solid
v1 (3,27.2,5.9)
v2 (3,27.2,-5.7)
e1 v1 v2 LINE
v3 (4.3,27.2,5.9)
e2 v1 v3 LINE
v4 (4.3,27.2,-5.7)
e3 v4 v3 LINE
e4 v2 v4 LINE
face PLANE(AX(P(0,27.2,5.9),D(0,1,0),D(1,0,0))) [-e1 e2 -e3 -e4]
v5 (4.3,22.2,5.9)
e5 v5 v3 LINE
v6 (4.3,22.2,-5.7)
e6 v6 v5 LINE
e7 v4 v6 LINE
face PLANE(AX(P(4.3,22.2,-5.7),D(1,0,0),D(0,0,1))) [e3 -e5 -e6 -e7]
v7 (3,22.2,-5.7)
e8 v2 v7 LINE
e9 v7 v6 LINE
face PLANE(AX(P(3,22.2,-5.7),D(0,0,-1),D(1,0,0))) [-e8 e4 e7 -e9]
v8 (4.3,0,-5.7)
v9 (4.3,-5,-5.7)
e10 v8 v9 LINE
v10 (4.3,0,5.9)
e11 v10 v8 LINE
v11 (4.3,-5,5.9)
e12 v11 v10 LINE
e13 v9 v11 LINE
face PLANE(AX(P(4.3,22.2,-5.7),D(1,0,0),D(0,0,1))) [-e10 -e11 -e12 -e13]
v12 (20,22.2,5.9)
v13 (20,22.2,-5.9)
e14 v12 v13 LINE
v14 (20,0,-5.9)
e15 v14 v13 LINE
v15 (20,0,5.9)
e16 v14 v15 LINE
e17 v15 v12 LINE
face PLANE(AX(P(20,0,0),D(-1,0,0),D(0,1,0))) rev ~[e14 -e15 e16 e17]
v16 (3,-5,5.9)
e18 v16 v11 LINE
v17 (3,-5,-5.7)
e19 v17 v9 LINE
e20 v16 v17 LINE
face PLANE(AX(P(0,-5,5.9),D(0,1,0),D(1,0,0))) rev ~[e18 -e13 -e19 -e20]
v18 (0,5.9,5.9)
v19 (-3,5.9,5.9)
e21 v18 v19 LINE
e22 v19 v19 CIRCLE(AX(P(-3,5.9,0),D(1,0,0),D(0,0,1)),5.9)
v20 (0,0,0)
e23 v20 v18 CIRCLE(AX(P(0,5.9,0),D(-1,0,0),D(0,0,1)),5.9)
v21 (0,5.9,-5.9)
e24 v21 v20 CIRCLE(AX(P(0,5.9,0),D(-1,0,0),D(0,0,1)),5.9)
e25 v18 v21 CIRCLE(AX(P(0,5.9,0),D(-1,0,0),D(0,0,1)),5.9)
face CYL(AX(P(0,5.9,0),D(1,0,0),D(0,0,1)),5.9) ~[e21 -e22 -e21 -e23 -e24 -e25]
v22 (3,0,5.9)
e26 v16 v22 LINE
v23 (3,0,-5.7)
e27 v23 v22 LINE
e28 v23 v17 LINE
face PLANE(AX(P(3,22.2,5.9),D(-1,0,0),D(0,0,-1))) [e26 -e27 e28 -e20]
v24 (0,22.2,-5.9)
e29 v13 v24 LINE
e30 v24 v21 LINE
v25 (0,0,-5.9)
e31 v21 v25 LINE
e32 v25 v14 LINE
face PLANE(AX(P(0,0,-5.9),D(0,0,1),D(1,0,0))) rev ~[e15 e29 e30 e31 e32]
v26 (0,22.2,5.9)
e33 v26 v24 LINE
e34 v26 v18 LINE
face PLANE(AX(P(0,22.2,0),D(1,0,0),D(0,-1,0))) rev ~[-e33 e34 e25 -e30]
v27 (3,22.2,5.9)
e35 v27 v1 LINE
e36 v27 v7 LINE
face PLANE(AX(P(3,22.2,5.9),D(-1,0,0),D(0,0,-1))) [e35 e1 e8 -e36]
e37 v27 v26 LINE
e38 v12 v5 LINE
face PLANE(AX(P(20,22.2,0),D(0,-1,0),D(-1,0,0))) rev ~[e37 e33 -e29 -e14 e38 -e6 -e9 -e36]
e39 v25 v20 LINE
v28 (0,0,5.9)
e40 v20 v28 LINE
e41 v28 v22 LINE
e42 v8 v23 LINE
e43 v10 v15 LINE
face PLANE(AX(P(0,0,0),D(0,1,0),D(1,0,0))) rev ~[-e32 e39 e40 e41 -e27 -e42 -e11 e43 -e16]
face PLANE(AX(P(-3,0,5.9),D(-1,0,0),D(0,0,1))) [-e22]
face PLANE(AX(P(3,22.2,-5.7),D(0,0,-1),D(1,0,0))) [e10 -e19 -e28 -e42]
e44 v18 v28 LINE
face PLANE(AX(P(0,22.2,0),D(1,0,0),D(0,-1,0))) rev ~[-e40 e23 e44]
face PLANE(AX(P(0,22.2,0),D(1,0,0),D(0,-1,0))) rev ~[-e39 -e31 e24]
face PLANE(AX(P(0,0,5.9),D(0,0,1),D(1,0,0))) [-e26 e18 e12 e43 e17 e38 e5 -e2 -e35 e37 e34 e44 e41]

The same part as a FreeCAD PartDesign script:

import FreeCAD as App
import Part
import Sketcher

V = App.Vector
Q = App.Units.Quantity


def add_polygon(sketch, points):
    """Adds a closed chain of lines whose ends are joined by coincident constraints."""
    first, n = sketch.GeometryCount, len(points)
    for a, b in zip(points, points[1:] + points[:1]):
        sketch.addGeometry(Part.LineSegment(App.Vector(*a, 0), App.Vector(*b, 0)), False)
    for i in range(n):
        sketch.addConstraint(Sketcher.Constraint("Coincident", first + i, 2, first + (i + 1) % n, 1))

doc = App.newDocument("Part")
body = doc.addObject("PartDesign::Body", "Body")

# Sketch on XY plane
sketch1 = doc.addObject("Sketcher::SketchObject", "Sketch")
body.addObject(sketch1)
sketch1.AttachmentSupport = (doc.XY_Plane, [""])
sketch1.MapMode = "FlatFace"
add_polygon(sketch1, [(0, 22.2), (0, 0), (20, 0), (20, 22.2)])  # lines 0-3
sketch1.addConstraint(Sketcher.Constraint("Vertical", 0))
sketch1.addConstraint(Sketcher.Constraint("Horizontal", 1))
sketch1.addConstraint(Sketcher.Constraint("Vertical", 2))
sketch1.addConstraint(Sketcher.Constraint("Horizontal", 3))
sketch1.addConstraint(Sketcher.Constraint("Coincident", 0, 2, -1, 1))
sketch1.addConstraint(Sketcher.Constraint("DistanceX", 1, 1, 1, 2, Q("20 mm")))
sketch1.addConstraint(Sketcher.Constraint("DistanceY", 0, 2, 0, 1, Q("22.2 mm")))
pad1 = doc.addObject("PartDesign::Pad", "Pad")
body.addObject(pad1)
pad1.Profile = sketch1
pad1.Length = 11.8
pad1.Midplane = True

# Sketch on YZ plane
sketch2 = doc.addObject("Sketcher::SketchObject", "Sketch001")
body.addObject(sketch2)
sketch2.AttachmentSupport = (doc.YZ_Plane, [""])
sketch2.MapMode = "FlatFace"
sketch2.addGeometry(Part.Circle(V(5.9, 0, 0), V(0, 0, 1), 5.9), False)
sketch2.addConstraint(Sketcher.Constraint("PointOnObject", 0, 3, -1))
sketch2.addConstraint(Sketcher.Constraint("Diameter", 0, Q("11.8 mm")))
sketch2.addConstraint(Sketcher.Constraint("DistanceX", -1, 1, 0, 3, Q("5.9 mm")))
pad2 = doc.addObject("PartDesign::Pad", "Pad001")
body.addObject(pad2)
pad2.Profile = sketch2
pad2.Length = 3
pad2.Reversed = True

# Sketch on XZ plane
sketch3 = doc.addObject("Sketcher::SketchObject", "Sketch002")
body.addObject(sketch3)
sketch3.AttachmentSupport = (doc.XZ_Plane, [""])
sketch3.MapMode = "FlatFace"
sketch3.AttachmentOffset = App.Placement(V(0, 0, -22.2), App.Rotation())
add_polygon(sketch3, [(3, -5.7), (3, 5.9), (4.3, 5.9), (4.3, -5.7)])  # lines 0-3
sketch3.addConstraint(Sketcher.Constraint("Vertical", 0))
sketch3.addConstraint(Sketcher.Constraint("Horizontal", 1))
sketch3.addConstraint(Sketcher.Constraint("Vertical", 2))
sketch3.addConstraint(Sketcher.Constraint("Horizontal", 3))
sketch3.addConstraint(Sketcher.Constraint("DistanceX", 1, 1, 1, 2, Q("1.3 mm")))
sketch3.addConstraint(Sketcher.Constraint("DistanceY", 0, 1, 0, 2, Q("11.6 mm")))
sketch3.addConstraint(Sketcher.Constraint("DistanceX", -1, 1, 0, 2, Q("3 mm")))
sketch3.addConstraint(Sketcher.Constraint("DistanceY", -1, 1, 0, 2, Q("5.9 mm")))
pad3 = doc.addObject("PartDesign::Pad", "Pad002")
body.addObject(pad3)
pad3.Profile = sketch3
pad3.Type = "TwoLengths"
pad3.Length = 5
pad3.Length2 = 27.2
pad3.Reversed = True

doc.recompute()
